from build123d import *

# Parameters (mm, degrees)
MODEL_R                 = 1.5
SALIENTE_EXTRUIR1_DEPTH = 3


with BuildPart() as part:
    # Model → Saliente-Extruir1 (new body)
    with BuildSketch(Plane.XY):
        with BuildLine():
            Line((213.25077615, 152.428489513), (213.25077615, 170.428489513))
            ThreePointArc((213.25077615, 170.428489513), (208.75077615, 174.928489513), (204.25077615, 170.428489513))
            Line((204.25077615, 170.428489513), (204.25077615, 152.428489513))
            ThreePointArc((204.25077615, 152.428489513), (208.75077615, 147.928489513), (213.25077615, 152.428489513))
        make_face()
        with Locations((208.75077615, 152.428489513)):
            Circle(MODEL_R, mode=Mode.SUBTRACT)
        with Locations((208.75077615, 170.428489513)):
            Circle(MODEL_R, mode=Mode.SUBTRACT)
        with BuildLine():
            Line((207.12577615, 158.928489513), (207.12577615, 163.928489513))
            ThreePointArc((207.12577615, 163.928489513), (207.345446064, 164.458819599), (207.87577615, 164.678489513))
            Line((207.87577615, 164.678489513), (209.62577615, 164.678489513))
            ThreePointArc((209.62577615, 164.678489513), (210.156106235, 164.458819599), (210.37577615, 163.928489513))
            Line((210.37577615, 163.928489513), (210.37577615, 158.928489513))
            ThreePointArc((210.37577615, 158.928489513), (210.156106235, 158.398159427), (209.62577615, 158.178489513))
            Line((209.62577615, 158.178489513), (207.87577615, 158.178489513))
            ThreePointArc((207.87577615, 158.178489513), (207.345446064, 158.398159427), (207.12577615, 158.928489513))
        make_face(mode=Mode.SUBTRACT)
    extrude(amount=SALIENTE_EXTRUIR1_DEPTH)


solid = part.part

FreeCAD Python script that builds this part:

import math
import FreeCAD as App
import Part
import Sketcher
from FreeCAD import Vector
Q = App.Units.Quantity

doc = App.newDocument("Part")
body = doc.addObject("PartDesign::Body", "Body")

sketch1 = doc.addObject("Sketcher::SketchObject", "Sketch")
body.addObject(sketch1)
sketch1.AttachmentSupport = (doc.XY_Plane, [""])
sketch1.MapMode = "FlatFace"
sketch1.addGeometry([
    Part.LineSegment(Vector(213.3, 152.4, 0), Vector(213.3, 170.4, 0)),
    Part.ArcOfCircle(Part.Circle(Vector(208.8, 170.4, 0), Vector(0, 0, 1), 4.5), math.radians(0), math.radians(180)),
    Part.LineSegment(Vector(204.3, 170.4, 0), Vector(204.3, 152.4, 0)),
    Part.ArcOfCircle(Part.Circle(Vector(208.8, 152.4, 0), Vector(0, 0, 1), 4.5), math.radians(180), math.radians(360)),
    Part.Circle(Vector(208.8, 152.4, 0), Vector(0, 0, 1), 1.5),
    Part.ArcOfCircle(Part.Circle(Vector(207.9, 158.9, 0), Vector(0, 0, 1), 0.8), math.radians(180), math.radians(270)),
    Part.LineSegment(Vector(207.1, 158.9, 0), Vector(207.1, 163.9, 0)),
    Part.ArcOfCircle(Part.Circle(Vector(207.9, 163.9, 0), Vector(0, 0, 1), 0.8), math.radians(90), math.radians(180)),
    Part.LineSegment(Vector(207.9, 164.7, 0), Vector(209.6, 164.7, 0)),
    Part.ArcOfCircle(Part.Circle(Vector(209.6, 163.9, 0), Vector(0, 0, 1), 0.8), math.radians(0), math.radians(90)),
    Part.LineSegment(Vector(210.4, 163.9, 0), Vector(210.4, 158.9, 0)),
    Part.ArcOfCircle(Part.Circle(Vector(209.6, 158.9, 0), Vector(0, 0, 1), 0.8), math.radians(-90), math.radians(0)),
    Part.LineSegment(Vector(209.6, 158.2, 0), Vector(207.9, 158.2, 0)),
    Part.Circle(Vector(208.8, 170.4, 0), Vector(0, 0, 1), 1.5),
], False)
sketch1.addConstraint([
    Sketcher.Constraint("Tangent", 0, 2, 1, 1),
    Sketcher.Constraint("Tangent", 1, 2, 2, 1),
    Sketcher.Constraint("Tangent", 2, 2, 3, 1),
    Sketcher.Constraint("Tangent", 3, 2, 0, 1),
    Sketcher.Constraint("Tangent", 5, 1, 6, 1),
    Sketcher.Constraint("Tangent", 6, 2, 7, 2),
    Sketcher.Constraint("Tangent", 7, 1, 8, 1),
    Sketcher.Constraint("Tangent", 8, 2, 9, 2),
    Sketcher.Constraint("Tangent", 9, 1, 10, 1),
    Sketcher.Constraint("Tangent", 10, 2, 11, 2),
    Sketcher.Constraint("Tangent", 11, 1, 12, 1),
    Sketcher.Constraint("Tangent", 12, 2, 5, 2),
    Sketcher.Constraint("Vertical", 0),
    Sketcher.Constraint("Vertical", 2),
    Sketcher.Constraint("Vertical", 6),
    Sketcher.Constraint("Horizontal", 8),
    Sketcher.Constraint("Vertical", 10),
    Sketcher.Constraint("Horizontal", 12),
    Sketcher.Constraint("Coincident", 4, 3, 3, 3),
    Sketcher.Constraint("Coincident", 13, 3, 1, 3),
    Sketcher.Constraint("Equal", 5, 7),
    Sketcher.Constraint("Equal", 7, 9),
    Sketcher.Constraint("Equal", 9, 11),
    Sketcher.Constraint("Equal", 4, 13),
    Sketcher.Constraint("Diameter", 4, Q("3 mm")),
    Sketcher.Constraint("Radius", 1, Q("4.5 mm")),
    Sketcher.Constraint("DistanceY", 0, 1, 0, 2, Q("18 mm")),
    Sketcher.Constraint("DistanceY", 6, 1, 6, 2, Q("5 mm")),
    Sketcher.Constraint("Radius", 5, Q("0.75 mm")),
    Sketcher.Constraint("DistanceX", 8, 1, 8, 2, Q("1.75 mm")),
    Sketcher.Constraint("DistanceY", 3, 3, 5, 3, Q("6.5 mm")),
    Sketcher.Constraint("DistanceX", 5, 3, 3, 3, Q("0.875 mm")),
    Sketcher.Constraint("DistanceY", -1, 1, 1, 3, Q("170.42849 mm")),
    Sketcher.Constraint("DistanceX", -1, 1, 1, 3, Q("208.750776 mm")),
])
pad1 = doc.addObject("PartDesign::Pad", "Pad")
body.addObject(pad1)
pad1.Profile = sketch1
pad1.Length = 3

doc.recompute()
